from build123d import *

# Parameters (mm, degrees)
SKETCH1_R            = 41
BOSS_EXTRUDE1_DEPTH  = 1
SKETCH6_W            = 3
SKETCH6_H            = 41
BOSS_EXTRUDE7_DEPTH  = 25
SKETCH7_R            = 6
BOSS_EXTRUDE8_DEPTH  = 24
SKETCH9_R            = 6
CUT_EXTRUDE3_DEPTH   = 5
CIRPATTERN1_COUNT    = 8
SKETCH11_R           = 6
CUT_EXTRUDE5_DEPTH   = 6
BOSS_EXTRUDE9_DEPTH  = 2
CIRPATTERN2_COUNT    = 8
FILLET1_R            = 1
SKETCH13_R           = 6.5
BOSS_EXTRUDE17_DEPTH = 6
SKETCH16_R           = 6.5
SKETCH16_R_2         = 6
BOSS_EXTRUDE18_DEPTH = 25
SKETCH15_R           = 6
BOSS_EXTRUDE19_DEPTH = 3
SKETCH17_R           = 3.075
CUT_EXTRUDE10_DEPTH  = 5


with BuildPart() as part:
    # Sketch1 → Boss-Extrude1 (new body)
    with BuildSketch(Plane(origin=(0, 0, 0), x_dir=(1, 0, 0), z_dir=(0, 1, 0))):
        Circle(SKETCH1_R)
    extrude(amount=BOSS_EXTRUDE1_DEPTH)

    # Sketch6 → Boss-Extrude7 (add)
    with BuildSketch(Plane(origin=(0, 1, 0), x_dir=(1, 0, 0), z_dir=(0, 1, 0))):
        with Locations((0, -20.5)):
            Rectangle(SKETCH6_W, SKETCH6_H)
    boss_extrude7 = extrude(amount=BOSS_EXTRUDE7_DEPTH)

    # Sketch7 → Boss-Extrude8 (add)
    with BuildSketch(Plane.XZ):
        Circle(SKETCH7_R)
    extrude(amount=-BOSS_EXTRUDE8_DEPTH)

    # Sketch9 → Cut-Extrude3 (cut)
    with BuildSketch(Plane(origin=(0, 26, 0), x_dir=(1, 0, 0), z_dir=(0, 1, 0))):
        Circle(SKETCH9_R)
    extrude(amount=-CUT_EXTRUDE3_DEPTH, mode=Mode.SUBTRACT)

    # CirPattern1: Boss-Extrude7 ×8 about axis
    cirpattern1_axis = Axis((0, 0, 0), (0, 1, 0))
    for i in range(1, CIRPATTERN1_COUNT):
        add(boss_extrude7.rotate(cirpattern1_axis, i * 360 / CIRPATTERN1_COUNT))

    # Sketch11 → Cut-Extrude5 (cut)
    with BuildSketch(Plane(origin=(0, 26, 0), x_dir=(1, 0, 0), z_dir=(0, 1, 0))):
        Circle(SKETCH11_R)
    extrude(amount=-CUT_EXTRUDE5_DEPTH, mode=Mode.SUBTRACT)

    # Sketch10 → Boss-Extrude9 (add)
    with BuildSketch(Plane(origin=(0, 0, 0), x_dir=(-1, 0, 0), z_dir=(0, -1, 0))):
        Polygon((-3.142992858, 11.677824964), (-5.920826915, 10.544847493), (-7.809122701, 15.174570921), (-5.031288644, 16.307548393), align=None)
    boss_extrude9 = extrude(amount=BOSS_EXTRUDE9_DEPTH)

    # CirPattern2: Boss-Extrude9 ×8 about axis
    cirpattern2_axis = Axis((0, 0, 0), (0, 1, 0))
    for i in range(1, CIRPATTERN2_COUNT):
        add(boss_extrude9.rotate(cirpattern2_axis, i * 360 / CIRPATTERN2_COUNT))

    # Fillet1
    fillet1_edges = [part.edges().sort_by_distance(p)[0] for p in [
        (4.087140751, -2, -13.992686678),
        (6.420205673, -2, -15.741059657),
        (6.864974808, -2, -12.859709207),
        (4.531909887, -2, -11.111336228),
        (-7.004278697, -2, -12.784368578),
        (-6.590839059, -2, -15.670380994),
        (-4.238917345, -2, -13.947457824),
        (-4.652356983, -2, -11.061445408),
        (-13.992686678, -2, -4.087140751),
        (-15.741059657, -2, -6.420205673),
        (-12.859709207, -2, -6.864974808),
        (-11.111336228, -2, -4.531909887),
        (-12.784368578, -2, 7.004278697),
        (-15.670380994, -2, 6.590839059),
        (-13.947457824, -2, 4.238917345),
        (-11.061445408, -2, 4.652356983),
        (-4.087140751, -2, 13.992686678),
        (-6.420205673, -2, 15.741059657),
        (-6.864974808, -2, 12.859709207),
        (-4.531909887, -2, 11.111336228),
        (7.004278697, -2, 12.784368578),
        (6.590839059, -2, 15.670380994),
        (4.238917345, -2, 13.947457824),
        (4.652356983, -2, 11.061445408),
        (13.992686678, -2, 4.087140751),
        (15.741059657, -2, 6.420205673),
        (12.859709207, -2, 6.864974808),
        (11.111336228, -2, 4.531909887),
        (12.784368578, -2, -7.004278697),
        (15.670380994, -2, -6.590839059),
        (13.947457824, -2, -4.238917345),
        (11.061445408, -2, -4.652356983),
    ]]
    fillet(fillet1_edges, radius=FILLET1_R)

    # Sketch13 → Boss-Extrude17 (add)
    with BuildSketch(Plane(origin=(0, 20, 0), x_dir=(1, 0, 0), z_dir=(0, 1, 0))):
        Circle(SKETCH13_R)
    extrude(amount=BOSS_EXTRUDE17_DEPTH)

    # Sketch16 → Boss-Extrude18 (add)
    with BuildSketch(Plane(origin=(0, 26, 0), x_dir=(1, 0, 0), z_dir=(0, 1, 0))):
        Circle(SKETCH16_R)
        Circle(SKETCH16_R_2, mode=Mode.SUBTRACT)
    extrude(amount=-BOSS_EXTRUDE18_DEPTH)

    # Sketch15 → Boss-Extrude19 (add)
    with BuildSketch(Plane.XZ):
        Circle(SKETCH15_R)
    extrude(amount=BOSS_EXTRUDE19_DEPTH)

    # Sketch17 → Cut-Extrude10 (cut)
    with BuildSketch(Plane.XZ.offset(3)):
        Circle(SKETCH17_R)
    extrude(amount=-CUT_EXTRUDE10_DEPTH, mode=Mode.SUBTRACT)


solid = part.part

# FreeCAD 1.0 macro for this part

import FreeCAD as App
import Part
import Sketcher


def edges_at(feature, points):
    """Names of the edges that pass closest to the given points."""
    edges = feature.Shape.Edges
    near = lambda p: min(range(len(edges)), key=lambda i: edges[i].distToShape(Part.Vertex(*p))[0])
    return sorted({f"Edge{near(p) + 1}" for p in points})


def add_polygon(sketch, points):
    """Adds a closed chain of lines whose ends are joined by coincident constraints."""
    first, n = sketch.GeometryCount, len(points)
    for a, b in zip(points, points[1:] + points[:1]):
        sketch.addGeometry(Part.LineSegment(App.Vector(*a, 0), App.Vector(*b, 0)), False)
    for i in range(n):
        sketch.addConstraint(Sketcher.Constraint("Coincident", first + i, 2, first + (i + 1) % n, 1))

doc = App.newDocument("Part")
params = doc.addObject("Spreadsheet::Sheet", "Params")
for row, (alias, value) in enumerate([
    ("sketch1_diameter", "82 mm"),
    ("pad1_length", "1 mm"),
    ("sketch2_width", "3 mm"),
    ("sketch2_height", "41 mm"),
    ("pad2_length", "25 mm"),
    ("sketch3_diameter", "12 mm"),
    ("pad3_length", "24 mm"),
    ("sketch4_diameter", "12 mm"),
    ("pocket1_length", "5 mm"),
    ("sketch5_diameter", "12 mm"),
    ("pocket2_length", "6 mm"),
    ("sketch6_length", "3 mm"),
    ("sketch6_length2", "5 mm"),
    ("pad4_length", "2 mm"),
    ("fillet_radius", "1 mm"),
    ("sketch7_diameter", "13 mm"),
    ("pad5_length", "6 mm"),
    ("sketch8_diameter", "13 mm"),
    ("sketch8_diameter2", "12 mm"),
    ("pad6_length", "25 mm"),
    ("sketch9_diameter", "12 mm"),
    ("pad7_length", "3 mm"),
    ("sketch10_diameter", "6.15 mm"),
    ("pocket3_length", "5 mm"),
], start=1):
    params.set(f"A{row}", alias)
    params.set(f"B{row}", "=" + value)
    params.setAlias(f"B{row}", alias)

body = doc.addObject("PartDesign::Body", "Body")

# Sketch on XZ plane
sketch1 = body.newObject("Sketcher::SketchObject", "Sketch")
sketch1.AttachmentSupport = (doc.getObject("XZ_Plane"), [""])
sketch1.MapMode = "FlatFace"
sketch1.addGeometry(Part.Circle(App.Vector(0, 0, 0), App.Vector(0, 0, 1), 41), False)
sketch1.addConstraint([
    Sketcher.Constraint("Coincident", 0, 3, -1, 1),
    Sketcher.Constraint("Diameter", 0, 82.0),
])
sketch1.setExpression("Constraints[1]", "Params.sketch1_diameter")
pad1 = body.newObject("PartDesign::Pad", "Pad")
pad1.Profile = sketch1
pad1.setExpression("Length", "Params.pad1_length")
pad1.Reversed = True

# Sketch on XZ plane
sketch2 = body.newObject("Sketcher::SketchObject", "Sketch001")
sketch2.AttachmentSupport = (doc.getObject("XZ_Plane"), [""])
sketch2.MapMode = "FlatFace"
sketch2.AttachmentOffset = App.Placement(App.Vector(0, 0, -1), App.Rotation())
add_polygon(sketch2, [(-1.5, 0), (-1.5, 41), (1.5, 41), (1.5, 0)])  # lines 0-3
sketch2.addConstraint([
    Sketcher.Constraint("Vertical", 0),
    Sketcher.Constraint("Horizontal", 1),
    Sketcher.Constraint("Vertical", 2),
    Sketcher.Constraint("Horizontal", 3),
    Sketcher.Constraint("Symmetric", 2, 2, 3, 2, -1, 1),
    Sketcher.Constraint("DistanceX", 1, 1, 1, 2, 3.0),
    Sketcher.Constraint("DistanceY", 0, 1, 0, 2, 41.0),
])
sketch2.setExpression("Constraints[9]", "Params.sketch2_width")
sketch2.setExpression("Constraints[10]", "Params.sketch2_height")
pad2 = body.newObject("PartDesign::Pad", "Pad001")
pad2.Profile = sketch2
pad2.setExpression("Length", "Params.pad2_length")
pad2.Reversed = True

# Sketch on XZ plane
sketch3 = body.newObject("Sketcher::SketchObject", "Sketch002")
sketch3.AttachmentSupport = (doc.getObject("XZ_Plane"), [""])
sketch3.MapMode = "FlatFace"
sketch3.addGeometry(Part.Circle(App.Vector(0, 0, 0), App.Vector(0, 0, 1), 6), False)
sketch3.addConstraint([
    Sketcher.Constraint("Coincident", 0, 3, -1, 1),
    Sketcher.Constraint("Diameter", 0, 12.0),
])
sketch3.setExpression("Constraints[1]", "Params.sketch3_diameter")
pad3 = body.newObject("PartDesign::Pad", "Pad002")
pad3.Profile = sketch3
pad3.setExpression("Length", "Params.pad3_length")
pad3.Reversed = True

# Sketch on XZ plane
sketch4 = body.newObject("Sketcher::SketchObject", "Sketch003")
sketch4.AttachmentSupport = (doc.getObject("XZ_Plane"), [""])
sketch4.MapMode = "FlatFace"
sketch4.AttachmentOffset = App.Placement(App.Vector(0, 0, -26), App.Rotation())
sketch4.addGeometry(Part.Circle(App.Vector(0, 0, 0), App.Vector(0, 0, 1), 6), False)
sketch4.addConstraint([
    Sketcher.Constraint("Coincident", 0, 3, -1, 1),
    Sketcher.Constraint("Diameter", 0, 12.0),
])
sketch4.setExpression("Constraints[1]", "Params.sketch4_diameter")
pocket1 = body.newObject("PartDesign::Pocket", "Pocket")
pocket1.Profile = sketch4
pocket1.setExpression("Length", "Params.pocket1_length")
pocket1.Reversed = True
doc.recompute()

polarpattern = body.newObject("PartDesign::PolarPattern", "PolarPattern")
polarpattern.Originals = [pad2]
polarpattern.Axis = (doc.getObject("Y_Axis"), [""])
polarpattern.Angle = 360
polarpattern.Occurrences = 8
body.Tip = polarpattern

# Sketch on XZ plane
sketch5 = body.newObject("Sketcher::SketchObject", "Sketch004")
sketch5.AttachmentSupport = (doc.getObject("XZ_Plane"), [""])
sketch5.MapMode = "FlatFace"
sketch5.AttachmentOffset = App.Placement(App.Vector(0, 0, -26), App.Rotation())
sketch5.addGeometry(Part.Circle(App.Vector(0, 0, 0), App.Vector(0, 0, 1), 6), False)
sketch5.addConstraint([
    Sketcher.Constraint("Coincident", 0, 3, -1, 1),
    Sketcher.Constraint("Diameter", 0, 12.0),
])
sketch5.setExpression("Constraints[1]", "Params.sketch5_diameter")
pocket2 = body.newObject("PartDesign::Pocket", "Pocket001")
pocket2.Profile = sketch5
pocket2.setExpression("Length", "Params.pocket2_length")
pocket2.Reversed = True

# Sketch on XZ plane
sketch6 = body.newObject("Sketcher::SketchObject", "Sketch005")
sketch6.AttachmentSupport = (doc.getObject("XZ_Plane"), [""])
sketch6.MapMode = "FlatFace"
add_polygon(sketch6, [(5.9, -10.5), (3.1, -11.7), (5, -16.3), (7.8, -15.2)])  # lines 0-3
sketch6.addConstraint([
    Sketcher.Constraint("Perpendicular", 0, 1),
    Sketcher.Constraint("Perpendicular", 1, 2),
    Sketcher.Constraint("Perpendicular", 2, 3),
    Sketcher.Constraint("Distance", 0, 3.0),
    Sketcher.Constraint("Distance", 1, 5.0),
    Sketcher.Constraint("DistanceY", 1, 2, 3, 2, 5.762701),
    Sketcher.Constraint("DistanceX", -1, 1, 1, 2, 5.031289),
    Sketcher.Constraint("DistanceY", 1, 2, -1, 1, 16.307548),
])
sketch6.setExpression("Constraints[7]", "Params.sketch6_length")
sketch6.setExpression("Constraints[8]", "Params.sketch6_length2")
pad4 = body.newObject("PartDesign::Pad", "Pad003")
pad4.Profile = sketch6
pad4.setExpression("Length", "Params.pad4_length")
doc.recompute()

polarpattern2 = body.newObject("PartDesign::PolarPattern", "PolarPattern001")
polarpattern2.Originals = [pad4]
polarpattern2.Axis = (doc.getObject("Y_Axis"), [""])
polarpattern2.Angle = 360
polarpattern2.Occurrences = 8
body.Tip = polarpattern2
doc.recompute()

fillet = body.newObject("PartDesign::Fillet", "Fillet")
fillet.Base = (polarpattern2, edges_at(polarpattern2, [
    (4.087, -2, -13.993),
    (6.42, -2, -15.741),
    (6.865, -2, -12.86),
    (4.532, -2, -11.111),
    (-7.004, -2, -12.784),
    (-6.591, -2, -15.67),
    (-4.239, -2, -13.947),
    (-4.652, -2, -11.061),
    (-13.993, -2, -4.087),
    (-15.741, -2, -6.42),
    (-12.86, -2, -6.865),
    (-11.111, -2, -4.532),
    (-12.784, -2, 7.004),
    (-15.67, -2, 6.591),
    (-13.947, -2, 4.239),
    (-11.061, -2, 4.652),
    (-4.087, -2, 13.993),
    (-6.42, -2, 15.741),
    (-6.865, -2, 12.86),
    (-4.532, -2, 11.111),
    (7.004, -2, 12.784),
    (6.591, -2, 15.67),
    (4.239, -2, 13.947),
    (4.652, -2, 11.061),
    (13.993, -2, 4.087),
    (15.741, -2, 6.42),
    (12.86, -2, 6.865),
    (11.111, -2, 4.532),
    (12.784, -2, -7.004),
    (15.67, -2, -6.591),
    (13.947, -2, -4.239),
    (11.061, -2, -4.652),
]))
fillet.setExpression("Radius", "Params.fillet_radius")

# Sketch on XZ plane
sketch7 = body.newObject("Sketcher::SketchObject", "Sketch006")
sketch7.AttachmentSupport = (doc.getObject("XZ_Plane"), [""])
sketch7.MapMode = "FlatFace"
sketch7.AttachmentOffset = App.Placement(App.Vector(0, 0, -20), App.Rotation())
sketch7.addGeometry(Part.Circle(App.Vector(0, 0, 0), App.Vector(0, 0, 1), 6), False)
sketch7.addConstraint([
    Sketcher.Constraint("Coincident", 0, 3, -1, 1),
    Sketcher.Constraint("Diameter", 0, 13.0),
])
sketch7.setExpression("Constraints[1]", "Params.sketch7_diameter")
pad5 = body.newObject("PartDesign::Pad", "Pad004")
pad5.Profile = sketch7
pad5.setExpression("Length", "Params.pad5_length")
pad5.Reversed = True

# Sketch on XZ plane
sketch8 = body.newObject("Sketcher::SketchObject", "Sketch007")
sketch8.AttachmentSupport = (doc.getObject("XZ_Plane"), [""])
sketch8.MapMode = "FlatFace"
sketch8.AttachmentOffset = App.Placement(App.Vector(0, 0, -26), App.Rotation())
sketch8.addGeometry([
    Part.Circle(App.Vector(0, 0, 0), App.Vector(0, 0, 1), 6),
    Part.Circle(App.Vector(0, 0, 0), App.Vector(0, 0, 1), 6),
], False)
sketch8.addConstraint([
    Sketcher.Constraint("Coincident", 0, 3, -1, 1),
    Sketcher.Constraint("Coincident", 1, 3, -1, 1),
    Sketcher.Constraint("Diameter", 0, 13.0),
    Sketcher.Constraint("Diameter", 1, 12.0),
])
sketch8.setExpression("Constraints[2]", "Params.sketch8_diameter")
sketch8.setExpression("Constraints[3]", "Params.sketch8_diameter2")
pad6 = body.newObject("PartDesign::Pad", "Pad005")
pad6.Profile = sketch8
pad6.setExpression("Length", "Params.pad6_length")

# Sketch on XZ plane
sketch9 = body.newObject("Sketcher::SketchObject", "Sketch008")
sketch9.AttachmentSupport = (doc.getObject("XZ_Plane"), [""])
sketch9.MapMode = "FlatFace"
sketch9.addGeometry(Part.Circle(App.Vector(0, 0, 0), App.Vector(0, 0, 1), 6), False)
sketch9.addConstraint([
    Sketcher.Constraint("Coincident", 0, 3, -1, 1),
    Sketcher.Constraint("Diameter", 0, 12.0),
])
sketch9.setExpression("Constraints[1]", "Params.sketch9_diameter")
pad7 = body.newObject("PartDesign::Pad", "Pad006")
pad7.Profile = sketch9
pad7.setExpression("Length", "Params.pad7_length")

# Sketch on XZ plane
sketch10 = body.newObject("Sketcher::SketchObject", "Sketch009")
sketch10.AttachmentSupport = (doc.getObject("XZ_Plane"), [""])
sketch10.MapMode = "FlatFace"
sketch10.AttachmentOffset = App.Placement(App.Vector(0, 0, 3), App.Rotation())
sketch10.addGeometry(Part.Circle(App.Vector(0, 0, 0), App.Vector(0, 0, 1), 3.1), False)
sketch10.addConstraint([
    Sketcher.Constraint("Coincident", 0, 3, -1, 1),
    Sketcher.Constraint("Diameter", 0, 6.15),
])
sketch10.setExpression("Constraints[1]", "Params.sketch10_diameter")
pocket3 = body.newObject("PartDesign::Pocket", "Pocket002")
pocket3.Profile = sketch10
pocket3.setExpression("Length", "Params.pocket3_length")

doc.recompute()
